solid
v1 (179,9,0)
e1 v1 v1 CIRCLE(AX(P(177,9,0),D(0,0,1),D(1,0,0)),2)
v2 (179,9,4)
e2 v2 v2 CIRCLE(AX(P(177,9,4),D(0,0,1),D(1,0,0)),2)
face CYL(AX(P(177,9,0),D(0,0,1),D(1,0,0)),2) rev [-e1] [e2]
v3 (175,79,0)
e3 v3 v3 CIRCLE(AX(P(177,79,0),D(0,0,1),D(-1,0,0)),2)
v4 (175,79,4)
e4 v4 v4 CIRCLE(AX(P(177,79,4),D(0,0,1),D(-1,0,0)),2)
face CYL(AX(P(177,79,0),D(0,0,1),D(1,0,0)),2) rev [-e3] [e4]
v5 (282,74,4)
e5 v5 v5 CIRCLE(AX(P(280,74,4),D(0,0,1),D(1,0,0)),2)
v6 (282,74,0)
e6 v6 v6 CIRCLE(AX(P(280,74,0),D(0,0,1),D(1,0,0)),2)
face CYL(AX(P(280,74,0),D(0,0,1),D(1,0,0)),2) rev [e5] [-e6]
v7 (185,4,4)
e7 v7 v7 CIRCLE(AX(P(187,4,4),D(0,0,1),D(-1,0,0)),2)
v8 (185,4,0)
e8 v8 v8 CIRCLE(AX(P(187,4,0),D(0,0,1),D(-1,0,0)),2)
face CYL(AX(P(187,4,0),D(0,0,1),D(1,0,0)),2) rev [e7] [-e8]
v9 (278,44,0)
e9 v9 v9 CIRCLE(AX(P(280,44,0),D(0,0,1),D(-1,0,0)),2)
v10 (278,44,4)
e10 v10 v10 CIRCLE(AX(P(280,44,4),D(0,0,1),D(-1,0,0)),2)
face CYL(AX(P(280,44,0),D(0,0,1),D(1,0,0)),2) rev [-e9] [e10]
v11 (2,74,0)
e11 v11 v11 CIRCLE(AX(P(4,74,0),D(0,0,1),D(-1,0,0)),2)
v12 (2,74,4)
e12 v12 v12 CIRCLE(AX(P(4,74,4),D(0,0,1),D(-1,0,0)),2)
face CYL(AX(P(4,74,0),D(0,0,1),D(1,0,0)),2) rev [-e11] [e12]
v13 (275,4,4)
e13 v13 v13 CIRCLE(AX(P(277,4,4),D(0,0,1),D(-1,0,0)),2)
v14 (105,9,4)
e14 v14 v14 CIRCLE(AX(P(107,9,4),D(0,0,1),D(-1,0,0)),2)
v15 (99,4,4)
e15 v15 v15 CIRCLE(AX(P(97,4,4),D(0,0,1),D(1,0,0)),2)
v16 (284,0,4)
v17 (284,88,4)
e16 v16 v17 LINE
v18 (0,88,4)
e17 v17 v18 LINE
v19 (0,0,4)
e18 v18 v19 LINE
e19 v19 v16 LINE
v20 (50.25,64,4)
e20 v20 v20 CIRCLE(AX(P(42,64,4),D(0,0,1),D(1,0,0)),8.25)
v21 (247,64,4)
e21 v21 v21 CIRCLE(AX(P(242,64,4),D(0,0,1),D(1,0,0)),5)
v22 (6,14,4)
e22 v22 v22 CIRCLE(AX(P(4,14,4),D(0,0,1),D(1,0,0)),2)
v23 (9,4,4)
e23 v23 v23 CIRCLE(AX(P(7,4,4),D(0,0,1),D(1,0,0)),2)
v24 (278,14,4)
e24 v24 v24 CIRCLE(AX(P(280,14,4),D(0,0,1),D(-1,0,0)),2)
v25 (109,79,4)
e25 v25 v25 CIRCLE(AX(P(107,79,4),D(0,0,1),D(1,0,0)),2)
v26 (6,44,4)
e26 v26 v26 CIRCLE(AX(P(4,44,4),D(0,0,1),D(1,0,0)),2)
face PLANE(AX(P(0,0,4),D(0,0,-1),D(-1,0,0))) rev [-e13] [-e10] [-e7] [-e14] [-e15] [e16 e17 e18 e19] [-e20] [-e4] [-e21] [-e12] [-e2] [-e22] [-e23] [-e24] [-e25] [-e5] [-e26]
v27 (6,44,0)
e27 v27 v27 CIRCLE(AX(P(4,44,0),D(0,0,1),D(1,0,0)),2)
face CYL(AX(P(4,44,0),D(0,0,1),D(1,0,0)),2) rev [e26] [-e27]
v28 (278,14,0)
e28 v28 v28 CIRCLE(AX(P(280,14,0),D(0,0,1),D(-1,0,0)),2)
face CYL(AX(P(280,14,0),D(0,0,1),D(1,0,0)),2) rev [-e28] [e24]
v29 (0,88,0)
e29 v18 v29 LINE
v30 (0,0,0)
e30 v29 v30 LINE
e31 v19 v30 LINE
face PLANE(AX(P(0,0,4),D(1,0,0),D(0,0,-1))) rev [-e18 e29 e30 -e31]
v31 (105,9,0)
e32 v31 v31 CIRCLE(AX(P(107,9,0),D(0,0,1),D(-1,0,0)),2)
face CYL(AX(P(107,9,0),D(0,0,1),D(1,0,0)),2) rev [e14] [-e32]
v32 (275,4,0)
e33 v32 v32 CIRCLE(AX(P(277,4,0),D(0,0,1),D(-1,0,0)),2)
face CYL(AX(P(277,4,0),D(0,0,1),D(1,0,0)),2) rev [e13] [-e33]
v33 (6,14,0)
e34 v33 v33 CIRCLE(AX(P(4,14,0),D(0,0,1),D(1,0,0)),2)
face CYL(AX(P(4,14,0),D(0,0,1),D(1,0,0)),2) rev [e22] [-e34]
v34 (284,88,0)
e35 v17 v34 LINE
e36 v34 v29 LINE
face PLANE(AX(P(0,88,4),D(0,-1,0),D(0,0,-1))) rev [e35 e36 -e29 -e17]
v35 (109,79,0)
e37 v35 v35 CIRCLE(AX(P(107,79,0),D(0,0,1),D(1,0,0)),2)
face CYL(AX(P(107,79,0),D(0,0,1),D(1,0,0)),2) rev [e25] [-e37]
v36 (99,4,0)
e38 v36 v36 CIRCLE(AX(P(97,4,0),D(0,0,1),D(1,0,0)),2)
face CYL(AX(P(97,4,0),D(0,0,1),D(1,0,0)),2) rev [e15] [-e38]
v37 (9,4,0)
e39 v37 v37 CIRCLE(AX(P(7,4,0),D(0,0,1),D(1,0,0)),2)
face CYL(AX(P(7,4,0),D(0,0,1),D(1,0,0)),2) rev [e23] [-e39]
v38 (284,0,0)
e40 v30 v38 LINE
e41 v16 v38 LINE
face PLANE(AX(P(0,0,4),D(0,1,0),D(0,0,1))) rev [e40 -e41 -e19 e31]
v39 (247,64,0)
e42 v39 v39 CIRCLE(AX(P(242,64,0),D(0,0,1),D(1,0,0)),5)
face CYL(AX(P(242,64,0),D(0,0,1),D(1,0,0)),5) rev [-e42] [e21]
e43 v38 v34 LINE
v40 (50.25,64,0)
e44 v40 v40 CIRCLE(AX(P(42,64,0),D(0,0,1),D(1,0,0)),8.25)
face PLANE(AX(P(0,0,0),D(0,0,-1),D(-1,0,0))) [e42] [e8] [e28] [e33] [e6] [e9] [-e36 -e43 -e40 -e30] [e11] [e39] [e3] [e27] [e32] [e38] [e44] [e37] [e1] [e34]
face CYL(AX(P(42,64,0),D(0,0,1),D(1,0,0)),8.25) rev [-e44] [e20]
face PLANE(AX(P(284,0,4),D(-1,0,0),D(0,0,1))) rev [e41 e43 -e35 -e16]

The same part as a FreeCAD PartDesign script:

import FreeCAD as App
import Part
import Sketcher

V = App.Vector
Q = App.Units.Quantity

doc = App.newDocument("Part")
body = doc.addObject("PartDesign::Body", "Body")

sketch1 = body.newObject("Sketcher::SketchObject", "Sketch")
sketch1.AttachmentSupport = (doc.getObject("XY_Plane"), [""])
sketch1.MapMode = "FlatFace"
sketch1.addGeometry([
    Part.LineSegment(V(0, 88, 0), V(0, 0, 0)),
    Part.LineSegment(V(0, 0, 0), V(284, 0, 0)),
    Part.LineSegment(V(284, 0, 0), V(284, 88, 0)),
    Part.LineSegment(V(284, 88, 0), V(0, 88, 0)),
], False)
sketch1.addConstraint([
    Sketcher.Constraint("Coincident", 0, 2, 1, 1),
    Sketcher.Constraint("Coincident", 1, 2, 2, 1),
    Sketcher.Constraint("Coincident", 2, 2, 3, 1),
    Sketcher.Constraint("Coincident", 3, 2, 0, 1),
    Sketcher.Constraint("Vertical", 0),
    Sketcher.Constraint("Horizontal", 1),
    Sketcher.Constraint("Vertical", 2),
    Sketcher.Constraint("Horizontal", 3),
    Sketcher.Constraint("Coincident", 0, 2, -1, 1),
    Sketcher.Constraint("DistanceX", 1, 1, 1, 2, Q("284 mm")),
    Sketcher.Constraint("DistanceY", 0, 2, 0, 1, Q("88 mm")),
])
pad1 = body.newObject("PartDesign::Pad", "Pad")
pad1.Profile = sketch1
pad1.Length = 4

sketch2 = body.newObject("Sketcher::SketchObject", "Sketch001")
sketch2.AttachmentSupport = (doc.getObject("XY_Plane"), [""])
sketch2.MapMode = "FlatFace"
sketch2.AttachmentOffset = App.Placement(V(0, 0, 4), App.Rotation())
sketch2.addGeometry([
    Part.Circle(V(107, 79, 0), V(0, 0, 1), 2),
    Part.Circle(V(107, 9, 0), V(0, 0, 1), 2),
    Part.Circle(V(177, 9, 0), V(0, 0, 1), 2),
    Part.Circle(V(177, 79, 0), V(0, 0, 1), 2),
    Part.Circle(V(42, 64, 0), V(0, 0, 1), 8.2),
    Part.Circle(V(4, 14, 0), V(0, 0, 1), 2),
    Part.Circle(V(4, 74, 0), V(0, 0, 1), 2),
    Part.Circle(V(4, 44, 0), V(0, 0, 1), 2),
    Part.Circle(V(280, 44, 0), V(0, 0, 1), 2),
    Part.Circle(V(280, 74, 0), V(0, 0, 1), 2),
    Part.Circle(V(280, 14, 0), V(0, 0, 1), 2),
    Part.Circle(V(7, 4, 0), V(0, 0, 1), 2),
    Part.Circle(V(97, 4, 0), V(0, 0, 1), 2),
    Part.Circle(V(187, 4, 0), V(0, 0, 1), 2),
    Part.Circle(V(277, 4, 0), V(0, 0, 1), 2),
    Part.Circle(V(242, 64, 0), V(0, 0, 1), 5),
], False)
sketch2.addConstraint([
    Sketcher.Constraint("Equal", 0, 1),
    Sketcher.Constraint("Equal", 1, 2),
    Sketcher.Constraint("Equal", 2, 3),
    Sketcher.Constraint("Equal", 3, 5),
    Sketcher.Constraint("Equal", 5, 6),
    Sketcher.Constraint("Equal", 6, 7),
    Sketcher.Constraint("Equal", 7, 8),
    Sketcher.Constraint("Equal", 8, 9),
    Sketcher.Constraint("Equal", 9, 10),
    Sketcher.Constraint("Equal", 10, 11),
    Sketcher.Constraint("Equal", 11, 12),
    Sketcher.Constraint("Equal", 12, 13),
    Sketcher.Constraint("Equal", 13, 14),
    Sketcher.Constraint("Horizontal", 1, 3, 2, 3),
    Sketcher.Constraint("Horizontal", 0, 3, 3, 3),
    Sketcher.Constraint("Horizontal", 7, 3, 8, 3),
    Sketcher.Constraint("Horizontal", 6, 3, 9, 3),
    Sketcher.Constraint("Horizontal", 5, 3, 10, 3),
    Sketcher.Constraint("Horizontal", 11, 3, 12, 3),
    Sketcher.Constraint("Horizontal", 12, 3, 13, 3),
    Sketcher.Constraint("Horizontal", 13, 3, 14, 3),
    Sketcher.Constraint("Horizontal", 4, 3, 15, 3),
    Sketcher.Constraint("Vertical", 0, 3, 1, 3),
    Sketcher.Constraint("Vertical", 2, 3, 3, 3),
    Sketcher.Constraint("Vertical", 5, 3, 6, 3),
    Sketcher.Constraint("Vertical", 6, 3, 7, 3),
    Sketcher.Constraint("Vertical", 8, 3, 9, 3),
    Sketcher.Constraint("Vertical", 9, 3, 10, 3),
    Sketcher.Constraint("Diameter", 0, Q("4 mm")),
    Sketcher.Constraint("Diameter", 15, Q("10 mm")),
    Sketcher.Constraint("Diameter", 4, Q("16.5 mm")),
    Sketcher.Constraint("DistanceX", -1, 1, 0, 3, Q("107 mm")),
    Sketcher.Constraint("DistanceY", -1, 1, 0, 3, Q("79 mm")),
    Sketcher.Constraint("DistanceY", -1, 1, 1, 3, Q("9 mm")),
    Sketcher.Constraint("DistanceX", -1, 1, 2, 3, Q("177 mm")),
    Sketcher.Constraint("DistanceX", -1, 1, 4, 3, Q("42 mm")),
    Sketcher.Constraint("DistanceY", -1, 1, 4, 3, Q("64 mm")),
    Sketcher.Constraint("DistanceX", -1, 1, 5, 3, Q("4 mm")),
    Sketcher.Constraint("DistanceY", -1, 1, 5, 3, Q("14 mm")),
    Sketcher.Constraint("DistanceY", -1, 1, 6, 3, Q("74 mm")),
    Sketcher.Constraint("DistanceY", -1, 1, 7, 3, Q("44 mm")),
    Sketcher.Constraint("DistanceX", -1, 1, 8, 3, Q("280 mm")),
    Sketcher.Constraint("DistanceX", -1, 1, 11, 3, Q("7 mm")),
    Sketcher.Constraint("DistanceY", -1, 1, 11, 3, Q("4 mm")),
    Sketcher.Constraint("DistanceX", -1, 1, 12, 3, Q("97 mm")),
    Sketcher.Constraint("DistanceX", -1, 1, 13, 3, Q("187 mm")),
    Sketcher.Constraint("DistanceX", -1, 1, 14, 3, Q("277 mm")),
    Sketcher.Constraint("DistanceX", -1, 1, 15, 3, Q("242 mm")),
])
pocket1 = body.newObject("PartDesign::Pocket", "Pocket")
pocket1.Profile = sketch2
pocket1.Type = "ThroughAll"

doc.recompute()
